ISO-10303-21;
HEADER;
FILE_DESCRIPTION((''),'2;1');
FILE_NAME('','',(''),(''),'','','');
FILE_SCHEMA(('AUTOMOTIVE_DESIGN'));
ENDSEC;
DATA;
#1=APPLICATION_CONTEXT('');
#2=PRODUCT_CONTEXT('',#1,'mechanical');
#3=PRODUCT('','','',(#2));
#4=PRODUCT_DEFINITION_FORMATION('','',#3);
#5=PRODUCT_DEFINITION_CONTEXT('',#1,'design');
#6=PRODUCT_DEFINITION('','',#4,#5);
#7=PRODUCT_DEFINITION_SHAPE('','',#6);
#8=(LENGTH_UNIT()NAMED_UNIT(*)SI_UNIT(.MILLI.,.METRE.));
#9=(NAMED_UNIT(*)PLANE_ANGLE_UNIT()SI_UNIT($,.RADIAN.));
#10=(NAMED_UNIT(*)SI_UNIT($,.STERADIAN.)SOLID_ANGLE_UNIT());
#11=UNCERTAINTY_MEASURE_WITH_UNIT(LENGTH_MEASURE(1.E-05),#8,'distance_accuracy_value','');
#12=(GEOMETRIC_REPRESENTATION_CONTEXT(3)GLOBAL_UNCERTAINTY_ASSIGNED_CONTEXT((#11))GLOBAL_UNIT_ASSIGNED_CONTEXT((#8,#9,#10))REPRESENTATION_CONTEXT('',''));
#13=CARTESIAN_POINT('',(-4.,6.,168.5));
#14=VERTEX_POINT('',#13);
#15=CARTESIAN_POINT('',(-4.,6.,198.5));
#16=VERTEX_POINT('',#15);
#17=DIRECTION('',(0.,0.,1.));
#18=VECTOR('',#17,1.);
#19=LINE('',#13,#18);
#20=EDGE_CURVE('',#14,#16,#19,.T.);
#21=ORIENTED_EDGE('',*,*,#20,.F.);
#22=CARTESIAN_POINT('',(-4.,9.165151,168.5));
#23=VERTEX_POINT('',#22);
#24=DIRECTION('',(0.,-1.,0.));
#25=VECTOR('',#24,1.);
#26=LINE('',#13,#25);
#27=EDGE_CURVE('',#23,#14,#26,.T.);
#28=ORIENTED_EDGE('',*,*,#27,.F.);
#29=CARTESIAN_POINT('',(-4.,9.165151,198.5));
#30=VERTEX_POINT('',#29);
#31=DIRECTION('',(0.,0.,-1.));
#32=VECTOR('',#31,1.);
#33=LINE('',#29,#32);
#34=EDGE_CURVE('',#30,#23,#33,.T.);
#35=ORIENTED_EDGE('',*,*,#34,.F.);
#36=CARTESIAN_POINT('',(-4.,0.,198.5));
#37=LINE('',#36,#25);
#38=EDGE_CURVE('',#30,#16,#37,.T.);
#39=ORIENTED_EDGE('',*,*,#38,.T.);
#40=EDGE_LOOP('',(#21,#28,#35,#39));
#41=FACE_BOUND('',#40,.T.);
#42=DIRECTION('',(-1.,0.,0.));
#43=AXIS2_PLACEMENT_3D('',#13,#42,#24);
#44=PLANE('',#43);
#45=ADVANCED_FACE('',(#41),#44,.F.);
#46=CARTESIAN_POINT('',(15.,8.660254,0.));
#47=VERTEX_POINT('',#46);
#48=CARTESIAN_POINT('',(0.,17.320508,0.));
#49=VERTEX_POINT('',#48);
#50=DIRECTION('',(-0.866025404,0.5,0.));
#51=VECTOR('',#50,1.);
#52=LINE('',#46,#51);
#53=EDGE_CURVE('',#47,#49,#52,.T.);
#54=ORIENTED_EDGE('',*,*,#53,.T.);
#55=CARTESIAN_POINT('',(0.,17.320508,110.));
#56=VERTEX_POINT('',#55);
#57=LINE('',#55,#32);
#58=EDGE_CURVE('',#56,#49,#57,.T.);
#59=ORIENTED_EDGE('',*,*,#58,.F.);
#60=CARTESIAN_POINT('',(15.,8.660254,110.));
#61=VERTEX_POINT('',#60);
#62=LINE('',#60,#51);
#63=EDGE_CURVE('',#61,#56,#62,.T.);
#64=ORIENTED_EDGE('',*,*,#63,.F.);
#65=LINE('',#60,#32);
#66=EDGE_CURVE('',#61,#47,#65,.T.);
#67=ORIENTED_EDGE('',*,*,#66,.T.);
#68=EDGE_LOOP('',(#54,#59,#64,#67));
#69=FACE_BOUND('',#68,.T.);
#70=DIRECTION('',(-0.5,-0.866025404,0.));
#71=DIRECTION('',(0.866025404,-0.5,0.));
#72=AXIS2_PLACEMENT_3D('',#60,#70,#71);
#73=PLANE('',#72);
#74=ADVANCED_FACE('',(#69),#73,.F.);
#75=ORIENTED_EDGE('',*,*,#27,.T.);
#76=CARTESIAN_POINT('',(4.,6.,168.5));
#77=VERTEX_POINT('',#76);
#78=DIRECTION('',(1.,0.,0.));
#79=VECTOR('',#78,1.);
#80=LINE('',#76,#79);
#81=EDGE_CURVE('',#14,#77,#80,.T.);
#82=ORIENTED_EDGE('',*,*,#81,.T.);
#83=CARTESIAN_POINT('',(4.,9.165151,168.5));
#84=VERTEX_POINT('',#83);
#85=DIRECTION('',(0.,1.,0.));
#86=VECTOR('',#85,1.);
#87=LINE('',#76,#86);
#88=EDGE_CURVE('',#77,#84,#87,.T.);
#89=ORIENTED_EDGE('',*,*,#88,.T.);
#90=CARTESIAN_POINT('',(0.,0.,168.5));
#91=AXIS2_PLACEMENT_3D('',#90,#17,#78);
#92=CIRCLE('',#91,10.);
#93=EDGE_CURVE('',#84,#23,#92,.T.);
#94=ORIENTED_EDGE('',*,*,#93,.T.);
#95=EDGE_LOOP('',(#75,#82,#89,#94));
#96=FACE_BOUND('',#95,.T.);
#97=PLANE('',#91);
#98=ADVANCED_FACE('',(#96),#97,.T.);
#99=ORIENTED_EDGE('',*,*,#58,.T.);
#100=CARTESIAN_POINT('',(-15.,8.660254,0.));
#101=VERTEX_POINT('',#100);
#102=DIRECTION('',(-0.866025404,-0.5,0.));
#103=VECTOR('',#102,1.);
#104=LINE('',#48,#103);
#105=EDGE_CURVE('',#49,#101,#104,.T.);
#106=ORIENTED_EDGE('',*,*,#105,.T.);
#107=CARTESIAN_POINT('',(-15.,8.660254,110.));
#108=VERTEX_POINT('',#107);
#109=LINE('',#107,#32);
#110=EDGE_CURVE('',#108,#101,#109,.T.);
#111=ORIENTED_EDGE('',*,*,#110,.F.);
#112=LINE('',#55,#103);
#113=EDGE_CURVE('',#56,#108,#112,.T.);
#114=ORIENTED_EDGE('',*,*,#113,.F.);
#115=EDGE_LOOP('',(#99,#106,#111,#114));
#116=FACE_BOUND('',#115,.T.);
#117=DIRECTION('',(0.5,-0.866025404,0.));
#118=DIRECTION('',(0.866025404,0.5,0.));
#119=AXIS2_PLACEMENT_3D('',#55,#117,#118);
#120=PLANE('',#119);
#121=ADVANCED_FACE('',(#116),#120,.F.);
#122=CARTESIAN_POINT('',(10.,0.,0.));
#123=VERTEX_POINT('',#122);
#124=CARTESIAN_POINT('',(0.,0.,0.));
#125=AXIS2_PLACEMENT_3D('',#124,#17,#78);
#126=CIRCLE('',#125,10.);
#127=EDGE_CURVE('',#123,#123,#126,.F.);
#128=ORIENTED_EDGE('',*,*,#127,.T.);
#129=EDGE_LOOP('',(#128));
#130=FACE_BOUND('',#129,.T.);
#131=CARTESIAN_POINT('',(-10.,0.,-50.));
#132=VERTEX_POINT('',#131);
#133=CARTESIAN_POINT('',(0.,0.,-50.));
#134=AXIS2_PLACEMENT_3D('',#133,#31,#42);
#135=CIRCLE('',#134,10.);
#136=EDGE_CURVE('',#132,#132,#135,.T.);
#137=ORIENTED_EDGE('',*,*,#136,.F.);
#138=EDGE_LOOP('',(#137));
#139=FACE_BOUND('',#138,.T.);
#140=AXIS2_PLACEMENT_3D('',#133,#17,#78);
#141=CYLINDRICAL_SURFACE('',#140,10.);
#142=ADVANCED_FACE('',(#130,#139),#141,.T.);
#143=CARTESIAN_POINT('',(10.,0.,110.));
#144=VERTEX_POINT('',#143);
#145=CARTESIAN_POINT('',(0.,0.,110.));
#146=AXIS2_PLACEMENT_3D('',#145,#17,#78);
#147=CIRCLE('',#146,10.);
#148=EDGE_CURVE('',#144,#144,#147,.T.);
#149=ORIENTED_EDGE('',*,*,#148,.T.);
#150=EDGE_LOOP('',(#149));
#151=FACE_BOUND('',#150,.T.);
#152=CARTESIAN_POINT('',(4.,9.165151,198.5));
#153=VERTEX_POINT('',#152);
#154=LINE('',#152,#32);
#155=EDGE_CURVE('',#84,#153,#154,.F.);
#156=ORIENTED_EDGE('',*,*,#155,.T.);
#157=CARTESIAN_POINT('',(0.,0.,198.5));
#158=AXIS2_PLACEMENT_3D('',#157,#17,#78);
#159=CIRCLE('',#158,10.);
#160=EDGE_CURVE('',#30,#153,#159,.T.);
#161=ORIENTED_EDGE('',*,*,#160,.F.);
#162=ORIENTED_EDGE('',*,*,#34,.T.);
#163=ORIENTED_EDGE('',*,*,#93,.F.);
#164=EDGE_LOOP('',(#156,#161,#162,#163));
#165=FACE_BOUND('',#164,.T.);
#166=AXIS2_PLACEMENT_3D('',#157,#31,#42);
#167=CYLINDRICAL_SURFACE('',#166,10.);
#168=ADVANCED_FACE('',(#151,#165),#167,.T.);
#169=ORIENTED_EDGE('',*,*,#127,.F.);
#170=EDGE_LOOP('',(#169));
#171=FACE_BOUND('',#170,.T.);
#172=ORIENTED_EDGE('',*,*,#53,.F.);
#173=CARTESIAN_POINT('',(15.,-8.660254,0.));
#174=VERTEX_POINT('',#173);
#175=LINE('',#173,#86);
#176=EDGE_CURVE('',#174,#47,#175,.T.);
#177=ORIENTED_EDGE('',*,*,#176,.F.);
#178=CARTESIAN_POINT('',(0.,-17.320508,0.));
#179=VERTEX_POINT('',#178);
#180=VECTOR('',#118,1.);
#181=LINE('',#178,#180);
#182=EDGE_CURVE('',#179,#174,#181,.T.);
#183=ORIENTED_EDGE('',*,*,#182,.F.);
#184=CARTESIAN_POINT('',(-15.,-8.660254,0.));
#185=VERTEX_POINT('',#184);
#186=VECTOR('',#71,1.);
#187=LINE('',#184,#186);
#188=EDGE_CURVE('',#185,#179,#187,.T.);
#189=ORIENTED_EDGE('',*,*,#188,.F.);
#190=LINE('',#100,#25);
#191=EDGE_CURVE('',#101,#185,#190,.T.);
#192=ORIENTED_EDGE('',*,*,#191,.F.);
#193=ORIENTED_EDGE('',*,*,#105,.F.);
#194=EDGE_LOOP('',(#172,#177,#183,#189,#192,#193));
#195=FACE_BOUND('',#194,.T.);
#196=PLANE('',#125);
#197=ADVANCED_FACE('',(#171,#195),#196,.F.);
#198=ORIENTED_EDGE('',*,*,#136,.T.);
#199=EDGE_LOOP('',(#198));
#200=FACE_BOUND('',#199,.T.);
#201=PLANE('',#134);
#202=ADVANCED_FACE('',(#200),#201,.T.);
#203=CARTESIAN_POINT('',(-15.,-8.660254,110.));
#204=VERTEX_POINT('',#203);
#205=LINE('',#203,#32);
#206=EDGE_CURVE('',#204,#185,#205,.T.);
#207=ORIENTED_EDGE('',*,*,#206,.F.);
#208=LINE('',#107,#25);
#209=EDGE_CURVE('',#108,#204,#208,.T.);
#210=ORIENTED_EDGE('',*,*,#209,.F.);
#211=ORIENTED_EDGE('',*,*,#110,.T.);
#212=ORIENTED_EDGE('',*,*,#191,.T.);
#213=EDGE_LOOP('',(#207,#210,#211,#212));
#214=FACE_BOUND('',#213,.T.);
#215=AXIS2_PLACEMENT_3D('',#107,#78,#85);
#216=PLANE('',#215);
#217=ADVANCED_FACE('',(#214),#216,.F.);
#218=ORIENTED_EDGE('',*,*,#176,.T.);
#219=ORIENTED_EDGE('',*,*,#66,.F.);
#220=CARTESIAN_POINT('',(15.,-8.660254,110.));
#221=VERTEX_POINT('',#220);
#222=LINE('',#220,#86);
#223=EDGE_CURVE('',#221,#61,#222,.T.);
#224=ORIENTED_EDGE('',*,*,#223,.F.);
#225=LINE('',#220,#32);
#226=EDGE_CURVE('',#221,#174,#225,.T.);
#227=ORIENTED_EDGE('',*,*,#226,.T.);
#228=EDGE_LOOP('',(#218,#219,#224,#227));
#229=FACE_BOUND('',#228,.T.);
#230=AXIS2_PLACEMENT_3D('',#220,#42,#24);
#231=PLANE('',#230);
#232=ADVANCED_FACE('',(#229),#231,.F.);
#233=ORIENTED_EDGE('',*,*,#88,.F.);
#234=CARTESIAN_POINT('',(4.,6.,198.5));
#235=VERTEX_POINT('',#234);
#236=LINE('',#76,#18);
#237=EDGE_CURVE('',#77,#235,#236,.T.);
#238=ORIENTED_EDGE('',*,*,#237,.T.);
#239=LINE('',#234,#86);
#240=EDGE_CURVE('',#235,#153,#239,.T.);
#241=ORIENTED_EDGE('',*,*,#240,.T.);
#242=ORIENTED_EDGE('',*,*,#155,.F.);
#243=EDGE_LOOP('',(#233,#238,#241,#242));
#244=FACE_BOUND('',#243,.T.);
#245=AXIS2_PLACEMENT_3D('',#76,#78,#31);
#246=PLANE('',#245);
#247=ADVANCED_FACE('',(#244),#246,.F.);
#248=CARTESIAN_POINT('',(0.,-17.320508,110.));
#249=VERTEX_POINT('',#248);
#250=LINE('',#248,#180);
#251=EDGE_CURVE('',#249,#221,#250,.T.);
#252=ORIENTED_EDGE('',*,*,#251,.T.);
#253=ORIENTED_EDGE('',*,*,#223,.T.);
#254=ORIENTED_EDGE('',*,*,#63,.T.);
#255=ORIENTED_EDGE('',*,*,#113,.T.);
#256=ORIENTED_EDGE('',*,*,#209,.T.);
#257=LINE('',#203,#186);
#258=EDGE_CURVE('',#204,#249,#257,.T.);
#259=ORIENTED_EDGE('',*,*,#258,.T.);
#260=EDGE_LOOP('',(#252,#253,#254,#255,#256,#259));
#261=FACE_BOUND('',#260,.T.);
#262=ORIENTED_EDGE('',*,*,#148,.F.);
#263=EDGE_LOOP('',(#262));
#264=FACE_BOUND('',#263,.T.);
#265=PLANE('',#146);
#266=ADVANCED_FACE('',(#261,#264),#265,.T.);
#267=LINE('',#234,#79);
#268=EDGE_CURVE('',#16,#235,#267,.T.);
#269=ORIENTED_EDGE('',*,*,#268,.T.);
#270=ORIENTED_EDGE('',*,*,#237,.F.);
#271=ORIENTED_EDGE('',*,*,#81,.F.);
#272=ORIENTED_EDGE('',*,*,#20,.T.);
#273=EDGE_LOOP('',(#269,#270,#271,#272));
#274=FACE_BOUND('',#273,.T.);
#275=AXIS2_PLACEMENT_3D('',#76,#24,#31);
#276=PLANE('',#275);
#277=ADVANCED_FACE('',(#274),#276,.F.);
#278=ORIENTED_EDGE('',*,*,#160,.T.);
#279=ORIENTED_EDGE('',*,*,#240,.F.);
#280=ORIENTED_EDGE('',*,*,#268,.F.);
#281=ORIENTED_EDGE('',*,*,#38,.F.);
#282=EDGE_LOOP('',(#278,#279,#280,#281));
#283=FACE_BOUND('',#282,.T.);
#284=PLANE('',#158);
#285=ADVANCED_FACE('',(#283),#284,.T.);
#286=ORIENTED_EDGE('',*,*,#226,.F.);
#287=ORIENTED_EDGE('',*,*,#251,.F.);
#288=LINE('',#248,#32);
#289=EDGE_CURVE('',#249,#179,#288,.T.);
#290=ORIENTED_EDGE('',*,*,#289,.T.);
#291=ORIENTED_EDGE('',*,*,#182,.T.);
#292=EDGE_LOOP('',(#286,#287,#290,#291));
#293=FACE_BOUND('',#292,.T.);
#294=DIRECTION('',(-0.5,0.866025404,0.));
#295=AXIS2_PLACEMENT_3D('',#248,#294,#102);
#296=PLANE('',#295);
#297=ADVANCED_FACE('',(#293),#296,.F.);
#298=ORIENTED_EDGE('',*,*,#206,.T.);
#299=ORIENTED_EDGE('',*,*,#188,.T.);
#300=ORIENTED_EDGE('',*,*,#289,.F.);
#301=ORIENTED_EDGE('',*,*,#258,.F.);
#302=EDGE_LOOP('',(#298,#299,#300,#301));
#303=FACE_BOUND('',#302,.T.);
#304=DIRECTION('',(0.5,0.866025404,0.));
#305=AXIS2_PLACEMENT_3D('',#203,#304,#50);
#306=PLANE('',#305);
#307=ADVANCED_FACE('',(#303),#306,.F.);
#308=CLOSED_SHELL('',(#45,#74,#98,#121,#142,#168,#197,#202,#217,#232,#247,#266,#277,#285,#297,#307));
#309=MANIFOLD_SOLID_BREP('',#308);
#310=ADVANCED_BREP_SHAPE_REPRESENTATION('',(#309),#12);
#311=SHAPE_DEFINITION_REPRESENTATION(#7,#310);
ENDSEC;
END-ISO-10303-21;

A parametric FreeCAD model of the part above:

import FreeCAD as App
import Part
import Sketcher

V = App.Vector
Q = App.Units.Quantity

doc = App.newDocument("Part")
body = doc.addObject("PartDesign::Body", "Body")

# Sketch on XY plane
sketch1 = doc.addObject("Sketcher::SketchObject", "Sketch")
body.addObject(sketch1)
sketch1.AttachmentSupport = (doc.XY_Plane, [""])
sketch1.MapMode = "FlatFace"
sketch1.addGeometry(Part.LineSegment(V(-15, 9, 0), V(-15, -9, 0)), False)
sketch1.addGeometry(Part.LineSegment(V(-15, -9, 0), V(0, -17, 0)), False)
sketch1.addGeometry(Part.LineSegment(V(0, -17, 0), V(15, -9, 0)), False)
sketch1.addGeometry(Part.LineSegment(V(15, -9, 0), V(15, 9, 0)), False)
sketch1.addGeometry(Part.LineSegment(V(15, 9, 0), V(0, 17, 0)), False)
sketch1.addGeometry(Part.LineSegment(V(0, 17, 0), V(-15, 9, 0)), False)
sketch1.addConstraint(Sketcher.Constraint("Coincident", 0, 2, 1, 1))
sketch1.addConstraint(Sketcher.Constraint("Coincident", 1, 2, 2, 1))
sketch1.addConstraint(Sketcher.Constraint("Coincident", 2, 2, 3, 1))
sketch1.addConstraint(Sketcher.Constraint("Coincident", 3, 2, 4, 1))
sketch1.addConstraint(Sketcher.Constraint("Coincident", 4, 2, 5, 1))
sketch1.addConstraint(Sketcher.Constraint("Coincident", 5, 2, 0, 1))
sketch1.addConstraint(Sketcher.Constraint("Vertical", 0))
sketch1.addConstraint(Sketcher.Constraint("Vertical", 3))
sketch1.addConstraint(Sketcher.Constraint("Symmetric", 0, 2, 3, 2, -1, 1))
sketch1.addConstraint(Sketcher.Constraint("Symmetric", 1, 2, 4, 2, -1, 1))
sketch1.addConstraint(Sketcher.Constraint("PointOnObject", 1, 2, -2))
sketch1.addConstraint(Sketcher.Constraint("Parallel", 2, 5))
sketch1.addConstraint(Sketcher.Constraint("Horizontal", 0, 2, 2, 2))
sketch1.addConstraint(Sketcher.Constraint("Angle", 1, Q("-30 deg")))
sketch1.addConstraint(Sketcher.Constraint("DistanceX", 0, 2, -1, 1, 15.0))
sketch1.addConstraint(Sketcher.Constraint("DistanceY", 0, 2, 0, 1, 17.320508))
pad1 = doc.addObject("PartDesign::Pad", "Pad")
body.addObject(pad1)
pad1.Profile = sketch1
pad1.Length = 110

# Sketch on XY plane
sketch2 = doc.addObject("Sketcher::SketchObject", "Sketch001")
body.addObject(sketch2)
sketch2.AttachmentSupport = (doc.XY_Plane, [""])
sketch2.MapMode = "FlatFace"
sketch2.AttachmentOffset = App.Placement(V(0, 0, 110), App.Rotation())
sketch2.addGeometry(Part.Circle(V(0, 0, 0), V(0, 0, 1), 10), False)
sketch2.addConstraint(Sketcher.Constraint("Coincident", 0, 3, -1, 1))
sketch2.addConstraint(Sketcher.Constraint("Diameter", 0, 20.0))
pad2 = doc.addObject("PartDesign::Pad", "Pad001")
body.addObject(pad2)
pad2.Profile = sketch2
pad2.Length = 88.5

# Sketch on XY plane
sketch3 = doc.addObject("Sketcher::SketchObject", "Sketch002")
body.addObject(sketch3)
sketch3.AttachmentSupport = (doc.XY_Plane, [""])
sketch3.MapMode = "FlatFace"
sketch3.addGeometry(Part.Circle(V(0, 0, 0), V(0, 0, 1), 10), False)
sketch3.addConstraint(Sketcher.Constraint("Coincident", 0, 3, -1, 1))
sketch3.addConstraint(Sketcher.Constraint("Diameter", 0, 20.0))
pad3 = doc.addObject("PartDesign::Pad", "Pad002")
body.addObject(pad3)
pad3.Profile = sketch3
pad3.Length = 50
pad3.Reversed = True

# Sketch on XY plane
sketch4 = doc.addObject("Sketcher::SketchObject", "Sketch003")
body.addObject(sketch4)
sketch4.AttachmentSupport = (doc.XY_Plane, [""])
sketch4.MapMode = "FlatFace"
sketch4.AttachmentOffset = App.Placement(V(0, 0, 198.5), App.Rotation())
sketch4.addGeometry(Part.LineSegment(V(-4, 14, 0), V(-4, 6, 0)), False)
sketch4.addGeometry(Part.LineSegment(V(-4, 6, 0), V(4, 6, 0)), False)
sketch4.addGeometry(Part.LineSegment(V(4, 6, 0), V(4, 14, 0)), False)
sketch4.addGeometry(Part.LineSegment(V(4, 14, 0), V(-4, 14, 0)), False)
sketch4.addConstraint(Sketcher.Constraint("Coincident", 0, 2, 1, 1))
sketch4.addConstraint(Sketcher.Constraint("Coincident", 1, 2, 2, 1))
sketch4.addConstraint(Sketcher.Constraint("Coincident", 2, 2, 3, 1))
sketch4.addConstraint(Sketcher.Constraint("Coincident", 3, 2, 0, 1))
sketch4.addConstraint(Sketcher.Constraint("Vertical", 0))
sketch4.addConstraint(Sketcher.Constraint("Horizontal", 1))
sketch4.addConstraint(Sketcher.Constraint("Vertical", 2))
sketch4.addConstraint(Sketcher.Constraint("Horizontal", 3))
sketch4.addConstraint(Sketcher.Constraint("Equal", 3, 0))
sketch4.addConstraint(Sketcher.Constraint("DistanceX", 1, 1, 1, 2, 8.0))
sketch4.addConstraint(Sketcher.Constraint("DistanceX", 0, 2, -1, 1, 4.0))
sketch4.addConstraint(Sketcher.Constraint("DistanceY", -1, 1, 0, 2, 6.0))
pocket1 = doc.addObject("PartDesign::Pocket", "Pocket")
body.addObject(pocket1)
pocket1.Profile = sketch4
pocket1.Length = 30

doc.recompute()
